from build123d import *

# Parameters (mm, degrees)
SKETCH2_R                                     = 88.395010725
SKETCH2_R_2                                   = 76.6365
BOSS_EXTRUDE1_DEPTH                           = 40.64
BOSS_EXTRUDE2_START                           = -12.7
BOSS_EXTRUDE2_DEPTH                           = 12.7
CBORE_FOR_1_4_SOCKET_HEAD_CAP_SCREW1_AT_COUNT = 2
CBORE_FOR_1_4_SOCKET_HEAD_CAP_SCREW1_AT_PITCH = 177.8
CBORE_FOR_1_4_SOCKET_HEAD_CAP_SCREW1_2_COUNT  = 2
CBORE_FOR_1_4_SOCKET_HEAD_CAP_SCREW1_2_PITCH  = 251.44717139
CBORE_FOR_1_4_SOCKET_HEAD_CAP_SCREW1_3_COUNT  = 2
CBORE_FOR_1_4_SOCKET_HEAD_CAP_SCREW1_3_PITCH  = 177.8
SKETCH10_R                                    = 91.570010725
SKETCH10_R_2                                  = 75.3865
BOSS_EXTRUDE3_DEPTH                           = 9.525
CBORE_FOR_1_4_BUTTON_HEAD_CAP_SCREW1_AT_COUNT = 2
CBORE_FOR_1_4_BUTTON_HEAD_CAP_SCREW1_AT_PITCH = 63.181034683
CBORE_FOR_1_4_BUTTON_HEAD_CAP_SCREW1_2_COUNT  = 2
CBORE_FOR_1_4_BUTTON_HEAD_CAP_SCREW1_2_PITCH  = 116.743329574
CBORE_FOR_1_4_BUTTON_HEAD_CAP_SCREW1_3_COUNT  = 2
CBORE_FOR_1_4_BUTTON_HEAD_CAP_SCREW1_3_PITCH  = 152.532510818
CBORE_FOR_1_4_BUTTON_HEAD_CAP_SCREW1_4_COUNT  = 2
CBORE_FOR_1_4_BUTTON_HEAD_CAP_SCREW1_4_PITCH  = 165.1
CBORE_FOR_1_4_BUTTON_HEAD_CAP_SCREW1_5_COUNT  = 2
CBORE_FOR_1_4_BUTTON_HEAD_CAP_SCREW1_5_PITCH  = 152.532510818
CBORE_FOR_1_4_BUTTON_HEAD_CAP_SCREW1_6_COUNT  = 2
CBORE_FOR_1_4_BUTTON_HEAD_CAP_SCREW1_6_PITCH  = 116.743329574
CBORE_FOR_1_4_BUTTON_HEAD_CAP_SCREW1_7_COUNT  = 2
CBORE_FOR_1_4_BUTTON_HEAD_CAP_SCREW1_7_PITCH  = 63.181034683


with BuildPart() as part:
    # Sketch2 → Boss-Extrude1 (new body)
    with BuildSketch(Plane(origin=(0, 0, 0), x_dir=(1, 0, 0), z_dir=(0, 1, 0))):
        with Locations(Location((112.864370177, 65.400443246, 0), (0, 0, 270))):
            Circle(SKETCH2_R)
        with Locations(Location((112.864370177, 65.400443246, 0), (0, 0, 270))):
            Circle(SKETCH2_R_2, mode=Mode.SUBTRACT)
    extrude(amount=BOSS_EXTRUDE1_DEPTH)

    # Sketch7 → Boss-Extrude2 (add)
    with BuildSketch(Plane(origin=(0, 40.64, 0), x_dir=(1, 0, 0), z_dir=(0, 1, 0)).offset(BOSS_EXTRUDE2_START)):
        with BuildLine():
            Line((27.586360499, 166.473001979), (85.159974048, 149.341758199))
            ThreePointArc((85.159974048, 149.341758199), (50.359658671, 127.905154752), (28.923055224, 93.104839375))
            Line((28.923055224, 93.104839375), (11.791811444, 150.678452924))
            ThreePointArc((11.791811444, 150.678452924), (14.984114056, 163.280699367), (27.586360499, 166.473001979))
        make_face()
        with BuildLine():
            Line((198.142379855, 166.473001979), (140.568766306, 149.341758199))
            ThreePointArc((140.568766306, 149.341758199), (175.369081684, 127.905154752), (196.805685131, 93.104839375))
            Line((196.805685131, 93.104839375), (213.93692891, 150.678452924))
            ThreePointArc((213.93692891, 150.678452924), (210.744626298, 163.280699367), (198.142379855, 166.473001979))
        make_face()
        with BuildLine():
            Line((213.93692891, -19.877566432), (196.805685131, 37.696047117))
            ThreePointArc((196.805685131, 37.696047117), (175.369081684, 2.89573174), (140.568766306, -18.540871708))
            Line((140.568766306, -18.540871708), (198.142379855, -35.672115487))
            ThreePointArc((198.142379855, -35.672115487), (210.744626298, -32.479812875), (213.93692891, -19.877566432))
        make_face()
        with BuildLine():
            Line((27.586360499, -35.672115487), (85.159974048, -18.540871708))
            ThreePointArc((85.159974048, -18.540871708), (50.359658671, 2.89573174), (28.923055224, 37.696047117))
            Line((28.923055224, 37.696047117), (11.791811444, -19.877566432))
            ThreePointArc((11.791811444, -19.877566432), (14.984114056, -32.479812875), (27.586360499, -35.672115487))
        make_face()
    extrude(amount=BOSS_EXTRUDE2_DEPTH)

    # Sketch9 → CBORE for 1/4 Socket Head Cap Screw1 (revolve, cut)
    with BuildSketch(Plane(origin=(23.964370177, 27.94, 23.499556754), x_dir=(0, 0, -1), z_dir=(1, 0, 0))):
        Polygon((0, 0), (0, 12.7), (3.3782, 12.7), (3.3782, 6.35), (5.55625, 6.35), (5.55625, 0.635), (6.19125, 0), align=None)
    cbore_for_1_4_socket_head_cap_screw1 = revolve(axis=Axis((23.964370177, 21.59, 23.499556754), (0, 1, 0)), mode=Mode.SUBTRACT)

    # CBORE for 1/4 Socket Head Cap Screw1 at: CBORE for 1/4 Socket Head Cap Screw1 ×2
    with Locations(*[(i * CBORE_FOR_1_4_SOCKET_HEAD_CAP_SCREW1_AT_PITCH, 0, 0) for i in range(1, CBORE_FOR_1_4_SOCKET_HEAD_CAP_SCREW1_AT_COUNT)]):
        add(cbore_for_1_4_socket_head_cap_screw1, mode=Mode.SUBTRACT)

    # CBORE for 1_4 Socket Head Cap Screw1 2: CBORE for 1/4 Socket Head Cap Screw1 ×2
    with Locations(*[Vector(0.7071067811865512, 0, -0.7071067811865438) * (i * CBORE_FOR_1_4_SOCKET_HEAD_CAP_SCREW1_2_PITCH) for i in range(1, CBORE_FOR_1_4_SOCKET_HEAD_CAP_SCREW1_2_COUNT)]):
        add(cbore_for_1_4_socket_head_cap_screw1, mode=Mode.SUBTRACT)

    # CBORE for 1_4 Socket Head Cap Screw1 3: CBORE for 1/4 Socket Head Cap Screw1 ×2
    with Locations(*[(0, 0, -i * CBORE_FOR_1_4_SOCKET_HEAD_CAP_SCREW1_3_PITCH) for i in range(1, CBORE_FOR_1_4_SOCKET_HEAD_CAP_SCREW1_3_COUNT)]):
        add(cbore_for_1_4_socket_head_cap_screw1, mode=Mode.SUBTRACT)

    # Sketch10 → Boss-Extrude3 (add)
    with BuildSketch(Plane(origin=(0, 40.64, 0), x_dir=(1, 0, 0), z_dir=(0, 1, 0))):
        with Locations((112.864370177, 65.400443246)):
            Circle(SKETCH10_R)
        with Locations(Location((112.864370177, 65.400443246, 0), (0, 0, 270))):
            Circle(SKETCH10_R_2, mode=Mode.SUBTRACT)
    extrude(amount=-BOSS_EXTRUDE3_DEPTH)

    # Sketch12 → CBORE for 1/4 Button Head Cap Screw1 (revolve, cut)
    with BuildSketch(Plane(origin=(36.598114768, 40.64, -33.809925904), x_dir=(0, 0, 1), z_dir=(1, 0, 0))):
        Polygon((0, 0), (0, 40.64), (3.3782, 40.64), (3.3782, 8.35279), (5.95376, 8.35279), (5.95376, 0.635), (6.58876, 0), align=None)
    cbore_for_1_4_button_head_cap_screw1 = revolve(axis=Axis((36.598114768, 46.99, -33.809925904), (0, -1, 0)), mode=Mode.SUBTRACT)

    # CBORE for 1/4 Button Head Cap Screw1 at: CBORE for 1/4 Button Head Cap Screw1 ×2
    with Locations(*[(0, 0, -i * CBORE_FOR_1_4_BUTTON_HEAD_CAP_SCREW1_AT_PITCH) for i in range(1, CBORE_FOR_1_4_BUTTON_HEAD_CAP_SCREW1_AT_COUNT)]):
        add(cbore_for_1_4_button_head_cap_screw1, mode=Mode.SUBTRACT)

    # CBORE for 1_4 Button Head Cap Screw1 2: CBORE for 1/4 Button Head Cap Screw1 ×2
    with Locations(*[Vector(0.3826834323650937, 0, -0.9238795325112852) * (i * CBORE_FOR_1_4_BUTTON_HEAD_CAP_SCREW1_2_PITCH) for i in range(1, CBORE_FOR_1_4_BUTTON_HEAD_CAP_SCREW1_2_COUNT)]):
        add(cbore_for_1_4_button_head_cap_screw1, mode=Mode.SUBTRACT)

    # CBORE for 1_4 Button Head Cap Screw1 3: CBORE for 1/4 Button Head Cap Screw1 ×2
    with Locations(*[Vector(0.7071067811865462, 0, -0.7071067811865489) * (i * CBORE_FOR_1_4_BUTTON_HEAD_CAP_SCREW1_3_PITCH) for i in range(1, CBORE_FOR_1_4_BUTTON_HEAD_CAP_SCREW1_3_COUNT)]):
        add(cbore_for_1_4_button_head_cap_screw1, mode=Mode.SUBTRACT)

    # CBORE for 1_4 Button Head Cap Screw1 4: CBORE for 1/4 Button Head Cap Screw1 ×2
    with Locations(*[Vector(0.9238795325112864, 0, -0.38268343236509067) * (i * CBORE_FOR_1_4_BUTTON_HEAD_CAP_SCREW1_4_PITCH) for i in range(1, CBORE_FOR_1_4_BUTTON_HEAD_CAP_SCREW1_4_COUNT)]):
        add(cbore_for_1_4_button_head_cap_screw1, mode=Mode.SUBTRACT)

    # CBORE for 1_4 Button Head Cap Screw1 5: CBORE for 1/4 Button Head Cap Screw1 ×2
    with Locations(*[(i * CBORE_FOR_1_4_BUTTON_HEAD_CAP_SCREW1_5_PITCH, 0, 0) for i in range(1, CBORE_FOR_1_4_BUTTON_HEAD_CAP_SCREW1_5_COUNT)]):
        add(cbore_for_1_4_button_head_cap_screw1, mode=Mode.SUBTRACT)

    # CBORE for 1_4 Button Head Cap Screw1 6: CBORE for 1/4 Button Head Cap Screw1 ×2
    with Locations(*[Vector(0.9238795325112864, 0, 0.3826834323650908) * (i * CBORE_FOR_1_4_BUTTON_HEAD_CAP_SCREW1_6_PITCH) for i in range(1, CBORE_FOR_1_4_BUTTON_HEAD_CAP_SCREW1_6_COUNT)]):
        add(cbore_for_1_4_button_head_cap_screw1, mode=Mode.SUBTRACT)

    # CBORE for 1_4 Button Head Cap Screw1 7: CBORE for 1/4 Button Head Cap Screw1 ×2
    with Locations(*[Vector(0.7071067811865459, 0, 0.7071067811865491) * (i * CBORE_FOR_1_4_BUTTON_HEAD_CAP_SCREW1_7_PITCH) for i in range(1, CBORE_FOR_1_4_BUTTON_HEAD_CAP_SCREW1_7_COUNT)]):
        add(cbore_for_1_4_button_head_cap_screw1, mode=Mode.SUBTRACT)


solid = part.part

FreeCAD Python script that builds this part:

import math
import FreeCAD as App
import Part
import Sketcher
Q = App.Units.Quantity


def add_polygon(sketch, points):
    """Adds a closed chain of lines whose ends are joined by coincident constraints."""
    first, n = sketch.GeometryCount, len(points)
    for a, b in zip(points, points[1:] + points[:1]):
        sketch.addGeometry(Part.LineSegment(App.Vector(*a, 0), App.Vector(*b, 0)), False)
    for i in range(n):
        sketch.addConstraint(Sketcher.Constraint("Coincident", first + i, 2, first + (i + 1) % n, 1))

doc = App.newDocument("Part")
body = doc.addObject("PartDesign::Body", "Body")

# Sketch on XZ plane
sketch1 = body.newObject("Sketcher::SketchObject", "Sketch")
sketch1.AttachmentSupport = (doc.getObject("XZ_Plane"), [""])
sketch1.MapMode = "FlatFace"
sketch1.addGeometry([
    Part.Circle(App.Vector(113, -65, 0), App.Vector(0, 0, 1), 88),
    Part.Circle(App.Vector(113, -65, 0), App.Vector(0, 0, 1), 77),
], False)
sketch1.addConstraint([
    Sketcher.Constraint("Coincident", 1, 3, 0, 3),
    Sketcher.Constraint("Diameter", 1, Q("153.273 mm")),
    Sketcher.Constraint("Diameter", 0, Q("176.790021 mm")),
    Sketcher.Constraint("DistanceX", -1, 1, 0, 3, Q("112.86437 mm")),
    Sketcher.Constraint("DistanceY", 0, 3, -1, 1, Q("65.400443 mm")),
])
pad1 = body.newObject("PartDesign::Pad", "Pad")
pad1.Profile = sketch1
pad1.Length = Q("1.6 in")
pad1.Reversed = True

# Sketch on XZ plane
sketch2 = body.newObject("Sketcher::SketchObject", "Sketch001")
sketch2.AttachmentSupport = (doc.getObject("XZ_Plane"), [""])
sketch2.MapMode = "FlatFace"
sketch2.AttachmentOffset = App.Placement(App.Vector(0, 0, -1.1 * 25.4), App.Rotation())
sketch2.addGeometry([
    Part.LineSegment(App.Vector(85, -149, 0), App.Vector(28, -166, 0)),  # 0
    Part.ArcOfCircle(Part.Circle(App.Vector(24, -154, 0), App.Vector(0, 0, 1), 13), math.radians(163), math.radians(287)),  # 1
    Part.LineSegment(App.Vector(12, -151, 0), App.Vector(29, -93, 0)),  # 2
    Part.ArcOfCircle(Part.Circle(App.Vector(113, -65, 0), App.Vector(0, 0, 1), 88), math.radians(-162), math.radians(-108)),  # 3
    Part.LineSegment(App.Vector(198, -166, 0), App.Vector(141, -149, 0)),  # 4
    Part.ArcOfCircle(Part.Circle(App.Vector(113, -65, 0), App.Vector(0, 0, 1), 88), math.radians(-72), math.radians(-18)),  # 5
    Part.LineSegment(App.Vector(197, -93, 0), App.Vector(214, -151, 0)),  # 6
    Part.ArcOfCircle(Part.Circle(App.Vector(202, -154, 0), App.Vector(0, 0, 1), 13), math.radians(-107), math.radians(17)),  # 7
    Part.LineSegment(App.Vector(214, 20, 0), App.Vector(197, -38, 0)),  # 8
    Part.ArcOfCircle(Part.Circle(App.Vector(113, -65, 0), App.Vector(0, 0, 1), 88), math.radians(18), math.radians(72)),  # 9
    Part.LineSegment(App.Vector(141, 19, 0), App.Vector(198, 36, 0)),  # 10
    Part.ArcOfCircle(Part.Circle(App.Vector(202, 23, 0), App.Vector(0, 0, 1), 13), math.radians(-17), math.radians(107)),  # 11
    Part.LineSegment(App.Vector(28, 36, 0), App.Vector(85, 19, 0)),  # 12
    Part.ArcOfCircle(Part.Circle(App.Vector(113, -65, 0), App.Vector(0, 0, 1), 88), math.radians(108), math.radians(162)),  # 13
    Part.LineSegment(App.Vector(29, -38, 0), App.Vector(12, 20, 0)),  # 14
    Part.ArcOfCircle(Part.Circle(App.Vector(24, 23, 0), App.Vector(0, 0, 1), 13), math.radians(73), math.radians(197)),  # 15
], False)
sketch2.addConstraint([
    Sketcher.Constraint("Tangent", 0, 2, 1, 2),
    Sketcher.Constraint("Tangent", 1, 1, 2, 1),
    Sketcher.Constraint("Coincident", 2, 2, 3, 1),
    Sketcher.Constraint("Coincident", 3, 2, 0, 1),
    Sketcher.Constraint("Coincident", 4, 2, 5, 1),
    Sketcher.Constraint("Coincident", 5, 2, 6, 1),
    Sketcher.Constraint("Tangent", 6, 2, 7, 2),
    Sketcher.Constraint("Tangent", 7, 1, 4, 1),
    Sketcher.Constraint("Coincident", 8, 2, 9, 1),
    Sketcher.Constraint("Coincident", 9, 2, 10, 1),
    Sketcher.Constraint("Tangent", 10, 2, 11, 2),
    Sketcher.Constraint("Tangent", 11, 1, 8, 1),
    Sketcher.Constraint("Coincident", 12, 2, 13, 1),
    Sketcher.Constraint("Coincident", 13, 2, 14, 1),
    Sketcher.Constraint("Tangent", 14, 2, 15, 2),
    Sketcher.Constraint("Tangent", 15, 1, 12, 1),
    Sketcher.Constraint("Coincident", 5, 3, 3, 3),
    Sketcher.Constraint("Coincident", 9, 3, 3, 3),
    Sketcher.Constraint("Coincident", 13, 3, 3, 3),
    Sketcher.Constraint("Equal", 3, 5),
    Sketcher.Constraint("Equal", 1, 7),
    Sketcher.Constraint("Equal", 5, 9),
    Sketcher.Constraint("Equal", 7, 11),
    Sketcher.Constraint("Equal", 9, 13),
    Sketcher.Constraint("Equal", 11, 15),
    Sketcher.Constraint("Perpendicular", 2, 4),
    Sketcher.Constraint("Perpendicular", 0, 6),
    Sketcher.Constraint("Perpendicular", 4, 8),
    Sketcher.Constraint("Perpendicular", 6, 10),
    Sketcher.Constraint("Perpendicular", 8, 12),
    Sketcher.Constraint("Perpendicular", 10, 14),
    Sketcher.Constraint("Horizontal", 1, 3, 7, 3),
    Sketcher.Constraint("Horizontal", 11, 3, 15, 3),
    Sketcher.Constraint("Horizontal", 3, 2, 4, 2),
    Sketcher.Constraint("Horizontal", 2, 2, 5, 2),
    Sketcher.Constraint("Horizontal", 9, 2, 12, 2),
    Sketcher.Constraint("Vertical", 7, 3, 11, 3),
    Sketcher.Constraint("Vertical", 5, 2, 8, 2),
    Sketcher.Constraint("Equal", 0, 2),
    Sketcher.Constraint("Radius", 1, Q("0.5 in")),
    Sketcher.Constraint("DistanceX", 1, 3, 7, 3, Q("7 in")),
    Sketcher.Constraint("Radius", 3, Q("88.395011 mm")),
    Sketcher.Constraint("Distance", 0, Q("60.068299 mm")),
    Sketcher.Constraint("DistanceY", 0, 2, -1, 1, Q("166.473002 mm")),
    Sketcher.Constraint("DistanceX", -1, 1, 1, 3, Q("23.96437 mm")),
])
pad2 = body.newObject("PartDesign::Pad", "Pad001")
pad2.Profile = sketch2
pad2.Length = Q("0.5 in")
pad2.Reversed = True

# Sketch on YZ plane
sketch3 = body.newObject("Sketcher::SketchObject", "Sketch002")
sketch3.AttachmentSupport = (doc.getObject("YZ_Plane"), [""])
sketch3.MapMode = "FlatFace"
sketch3.AttachmentOffset = App.Placement(App.Vector(0, 0, 23.96437), App.Rotation())
add_polygon(sketch3, [(40.6, 23.5), (27.9, 23.5), (27.9, 17.3), (28.6, 17.9), (34.3, 17.9), (34.3, 20.1), (40.6, 20.1)])  # lines 0-6
sketch3.addGeometry(Part.LineSegment(App.Vector(27.9, 23.5, 0), App.Vector(40.6, 23.5, 0)), True)  # axis
sketch3.addConstraint([
    Sketcher.Constraint("Horizontal", 0),
    Sketcher.Constraint("Vertical", 1),
    Sketcher.Constraint("Horizontal", 3),
    Sketcher.Constraint("Vertical", 4),
    Sketcher.Constraint("Horizontal", 5),
    Sketcher.Constraint("Vertical", 6),
    Sketcher.Constraint("Horizontal", 7),
    Sketcher.Constraint("Coincident", 7, 1, 0, 2),
    Sketcher.Constraint("Vertical", 5, 2, 7, 2),
    Sketcher.Constraint("DistanceX", 0, 2, 0, 1, Q("0.5 in")),
    Sketcher.Constraint("Angle", 2, Q("45 deg")),
    Sketcher.Constraint("DistanceX", 5, 1, 5, 2, Q("0.25 in")),
    Sketcher.Constraint("DistanceX", -1, 1, 0, 2, Q("1.1 in")),
    Sketcher.Constraint("DistanceX", 3, 1, 3, 2, Q("0.225 in")),
    Sketcher.Constraint("DistanceY", 6, 1, 6, 2, Q("0.133 in")),
    Sketcher.Constraint("DistanceY", 2, 2, 0, 2, Q("0.21875 in")),
    Sketcher.Constraint("DistanceY", -1, 1, 0, 2, Q("23.499557 mm")),
])
groove = body.newObject("PartDesign::Groove", "Groove")
groove.Profile = sketch3
groove.ReferenceAxis = (sketch3, ["Axis0"])
groove.Angle = 360
doc.recompute()

linearpattern = body.newObject("PartDesign::LinearPattern", "LinearPattern")
linearpattern.Originals = [groove]
linearpattern.Direction = (doc.getObject("X_Axis"), [""])
linearpattern.Mode = "offset"
linearpattern.Offset = Q("7 in")
linearpattern.Occurrences = 2
body.Tip = linearpattern
doc.recompute()

datumline = body.newObject("PartDesign::Line", "DatumLine")
datumline.Placement = App.Placement(App.Vector(0, 0, 0), App.Rotation(App.Vector(0, 0, 1), App.Vector(0.707106781, 0, -0.707106781)))
linearpattern2 = body.newObject("PartDesign::LinearPattern", "LinearPattern001")
linearpattern2.Originals = [groove]
linearpattern2.Direction = (datumline, [""])
linearpattern2.Mode = "offset"
linearpattern2.Offset = 251.447171
linearpattern2.Occurrences = 2
body.Tip = linearpattern2
doc.recompute()

linearpattern3 = body.newObject("PartDesign::LinearPattern", "LinearPattern002")
linearpattern3.Originals = [groove]
linearpattern3.Direction = (doc.getObject("Z_Axis"), [""])
linearpattern3.Mode = "offset"
linearpattern3.Offset = Q("7 in")
linearpattern3.Occurrences = 2
linearpattern3.Reversed = True
body.Tip = linearpattern3

# Sketch on XZ plane
sketch4 = body.newObject("Sketcher::SketchObject", "Sketch003")
sketch4.AttachmentSupport = (doc.getObject("XZ_Plane"), [""])
sketch4.MapMode = "FlatFace"
sketch4.AttachmentOffset = App.Placement(App.Vector(0, 0, -1.6 * 25.4), App.Rotation())
sketch4.addGeometry([
    Part.Circle(App.Vector(113, -65, 0), App.Vector(0, 0, 1), 92),
    Part.Circle(App.Vector(113, -65, 0), App.Vector(0, 0, 1), 75),
], False)
sketch4.addConstraint([
    Sketcher.Constraint("Coincident", 1, 3, 0, 3),
    Sketcher.Constraint("Diameter", 1, Q("150.773 mm")),
    Sketcher.Constraint("Diameter", 0, Q("183.140021 mm")),
    Sketcher.Constraint("DistanceX", -1, 1, 0, 3, Q("112.86437 mm")),
    Sketcher.Constraint("DistanceY", 0, 3, -1, 1, Q("65.400443 mm")),
])
pad3 = body.newObject("PartDesign::Pad", "Pad002")
pad3.Profile = sketch4
pad3.Length = Q("0.375 in")

# Sketch on YZ plane
sketch5 = body.newObject("Sketcher::SketchObject", "Sketch004")
sketch5.AttachmentSupport = (doc.getObject("YZ_Plane"), [""])
sketch5.MapMode = "FlatFace"
sketch5.AttachmentOffset = App.Placement(App.Vector(0, 0, 36.598115), App.Rotation())
add_polygon(sketch5, [(0, -33.8), (40.6, -33.8), (40.6, -27.2), (40, -27.9), (32.3, -27.9), (32.3, -30.4), (0, -30.4)])  # lines 0-6
sketch5.addGeometry(Part.LineSegment(App.Vector(40.6, -33.8, 0), App.Vector(0, -33.8, 0)), True)  # axis
sketch5.addConstraint([
    Sketcher.Constraint("Horizontal", 0),
    Sketcher.Constraint("Vertical", 1),
    Sketcher.Constraint("Horizontal", 3),
    Sketcher.Constraint("Vertical", 4),
    Sketcher.Constraint("Horizontal", 5),
    Sketcher.Constraint("Vertical", 6),
    Sketcher.Constraint("Horizontal", 7),
    Sketcher.Constraint("Coincident", 7, 1, 0, 2),
    Sketcher.Constraint("PointOnObject", 5, 2, -2),
    Sketcher.Constraint("PointOnObject", 7, 2, -2),
    Sketcher.Constraint("DistanceX", 0, 1, 0, 2, Q("1.6 in")),
    Sketcher.Constraint("Angle", 2, Q("-135 deg")),
    Sketcher.Constraint("DistanceY", 6, 2, 6, 1, Q("0.133 in")),
    Sketcher.Constraint("DistanceY", 1, 1, 1, 2, Q("0.2594 in")),
    Sketcher.Constraint("DistanceY", 4, 2, 4, 1, Q("0.1014 in")),
    Sketcher.Constraint("DistanceX", 3, 2, 3, 1, Q("7.71779 mm")),
    Sketcher.Constraint("DistanceY", 0, 2, -1, 1, Q("33.809926 mm")),
])
groove2 = body.newObject("PartDesign::Groove", "Groove001")
groove2.Profile = sketch5
groove2.ReferenceAxis = (sketch5, ["Axis0"])
groove2.Angle = 360
doc.recompute()

linearpattern4 = body.newObject("PartDesign::LinearPattern", "LinearPattern003")
linearpattern4.Originals = [groove2]
linearpattern4.Direction = (doc.getObject("Z_Axis"), [""])
linearpattern4.Mode = "offset"
linearpattern4.Offset = 63.181035
linearpattern4.Occurrences = 2
linearpattern4.Reversed = True
body.Tip = linearpattern4
doc.recompute()

datumline2 = body.newObject("PartDesign::Line", "DatumLine001")
datumline2.Placement = App.Placement(App.Vector(0, 0, 0), App.Rotation(App.Vector(0, 0, 1), App.Vector(0.382683432, 0, -0.923879533)))
linearpattern5 = body.newObject("PartDesign::LinearPattern", "LinearPattern004")
linearpattern5.Originals = [groove2]
linearpattern5.Direction = (datumline2, [""])
linearpattern5.Mode = "offset"
linearpattern5.Offset = 116.74333
linearpattern5.Occurrences = 2
body.Tip = linearpattern5
doc.recompute()

datumline3 = body.newObject("PartDesign::Line", "DatumLine002")
datumline3.Placement = App.Placement(App.Vector(0, 0, 0), App.Rotation(App.Vector(0, 0, 1), App.Vector(0.707106781, 0, -0.707106781)))
linearpattern6 = body.newObject("PartDesign::LinearPattern", "LinearPattern005")
linearpattern6.Originals = [groove2]
linearpattern6.Direction = (datumline3, [""])
linearpattern6.Mode = "offset"
linearpattern6.Offset = 152.532511
linearpattern6.Occurrences = 2
body.Tip = linearpattern6
doc.recompute()

datumline4 = body.newObject("PartDesign::Line", "DatumLine003")
datumline4.Placement = App.Placement(App.Vector(0, 0, 0), App.Rotation(App.Vector(0, 0, 1), App.Vector(0.923879533, 0, -0.382683432)))
linearpattern7 = body.newObject("PartDesign::LinearPattern", "LinearPattern006")
linearpattern7.Originals = [groove2]
linearpattern7.Direction = (datumline4, [""])
linearpattern7.Mode = "offset"
linearpattern7.Offset = Q("6.5 in")
linearpattern7.Occurrences = 2
body.Tip = linearpattern7
doc.recompute()

linearpattern8 = body.newObject("PartDesign::LinearPattern", "LinearPattern007")
linearpattern8.Originals = [groove2]
linearpattern8.Direction = (doc.getObject("X_Axis"), [""])
linearpattern8.Mode = "offset"
linearpattern8.Offset = 152.532511
linearpattern8.Occurrences = 2
body.Tip = linearpattern8
doc.recompute()

datumline5 = body.newObject("PartDesign::Line", "DatumLine004")
datumline5.Placement = App.Placement(App.Vector(0, 0, 0), App.Rotation(App.Vector(0, 0, 1), App.Vector(0.923879533, 0, 0.382683432)))
linearpattern9 = body.newObject("PartDesign::LinearPattern", "LinearPattern008")
linearpattern9.Originals = [groove2]
linearpattern9.Direction = (datumline5, [""])
linearpattern9.Mode = "offset"
linearpattern9.Offset = 116.74333
linearpattern9.Occurrences = 2
body.Tip = linearpattern9
doc.recompute()

datumline6 = body.newObject("PartDesign::Line", "DatumLine005")
datumline6.Placement = App.Placement(App.Vector(0, 0, 0), App.Rotation(App.Vector(0, 0, 1), App.Vector(0.707106781, 0, 0.707106781)))
linearpattern10 = body.newObject("PartDesign::LinearPattern", "LinearPattern009")
linearpattern10.Originals = [groove2]
linearpattern10.Direction = (datumline6, [""])
linearpattern10.Mode = "offset"
linearpattern10.Offset = 63.181035
linearpattern10.Occurrences = 2
body.Tip = linearpattern10

doc.recompute()
